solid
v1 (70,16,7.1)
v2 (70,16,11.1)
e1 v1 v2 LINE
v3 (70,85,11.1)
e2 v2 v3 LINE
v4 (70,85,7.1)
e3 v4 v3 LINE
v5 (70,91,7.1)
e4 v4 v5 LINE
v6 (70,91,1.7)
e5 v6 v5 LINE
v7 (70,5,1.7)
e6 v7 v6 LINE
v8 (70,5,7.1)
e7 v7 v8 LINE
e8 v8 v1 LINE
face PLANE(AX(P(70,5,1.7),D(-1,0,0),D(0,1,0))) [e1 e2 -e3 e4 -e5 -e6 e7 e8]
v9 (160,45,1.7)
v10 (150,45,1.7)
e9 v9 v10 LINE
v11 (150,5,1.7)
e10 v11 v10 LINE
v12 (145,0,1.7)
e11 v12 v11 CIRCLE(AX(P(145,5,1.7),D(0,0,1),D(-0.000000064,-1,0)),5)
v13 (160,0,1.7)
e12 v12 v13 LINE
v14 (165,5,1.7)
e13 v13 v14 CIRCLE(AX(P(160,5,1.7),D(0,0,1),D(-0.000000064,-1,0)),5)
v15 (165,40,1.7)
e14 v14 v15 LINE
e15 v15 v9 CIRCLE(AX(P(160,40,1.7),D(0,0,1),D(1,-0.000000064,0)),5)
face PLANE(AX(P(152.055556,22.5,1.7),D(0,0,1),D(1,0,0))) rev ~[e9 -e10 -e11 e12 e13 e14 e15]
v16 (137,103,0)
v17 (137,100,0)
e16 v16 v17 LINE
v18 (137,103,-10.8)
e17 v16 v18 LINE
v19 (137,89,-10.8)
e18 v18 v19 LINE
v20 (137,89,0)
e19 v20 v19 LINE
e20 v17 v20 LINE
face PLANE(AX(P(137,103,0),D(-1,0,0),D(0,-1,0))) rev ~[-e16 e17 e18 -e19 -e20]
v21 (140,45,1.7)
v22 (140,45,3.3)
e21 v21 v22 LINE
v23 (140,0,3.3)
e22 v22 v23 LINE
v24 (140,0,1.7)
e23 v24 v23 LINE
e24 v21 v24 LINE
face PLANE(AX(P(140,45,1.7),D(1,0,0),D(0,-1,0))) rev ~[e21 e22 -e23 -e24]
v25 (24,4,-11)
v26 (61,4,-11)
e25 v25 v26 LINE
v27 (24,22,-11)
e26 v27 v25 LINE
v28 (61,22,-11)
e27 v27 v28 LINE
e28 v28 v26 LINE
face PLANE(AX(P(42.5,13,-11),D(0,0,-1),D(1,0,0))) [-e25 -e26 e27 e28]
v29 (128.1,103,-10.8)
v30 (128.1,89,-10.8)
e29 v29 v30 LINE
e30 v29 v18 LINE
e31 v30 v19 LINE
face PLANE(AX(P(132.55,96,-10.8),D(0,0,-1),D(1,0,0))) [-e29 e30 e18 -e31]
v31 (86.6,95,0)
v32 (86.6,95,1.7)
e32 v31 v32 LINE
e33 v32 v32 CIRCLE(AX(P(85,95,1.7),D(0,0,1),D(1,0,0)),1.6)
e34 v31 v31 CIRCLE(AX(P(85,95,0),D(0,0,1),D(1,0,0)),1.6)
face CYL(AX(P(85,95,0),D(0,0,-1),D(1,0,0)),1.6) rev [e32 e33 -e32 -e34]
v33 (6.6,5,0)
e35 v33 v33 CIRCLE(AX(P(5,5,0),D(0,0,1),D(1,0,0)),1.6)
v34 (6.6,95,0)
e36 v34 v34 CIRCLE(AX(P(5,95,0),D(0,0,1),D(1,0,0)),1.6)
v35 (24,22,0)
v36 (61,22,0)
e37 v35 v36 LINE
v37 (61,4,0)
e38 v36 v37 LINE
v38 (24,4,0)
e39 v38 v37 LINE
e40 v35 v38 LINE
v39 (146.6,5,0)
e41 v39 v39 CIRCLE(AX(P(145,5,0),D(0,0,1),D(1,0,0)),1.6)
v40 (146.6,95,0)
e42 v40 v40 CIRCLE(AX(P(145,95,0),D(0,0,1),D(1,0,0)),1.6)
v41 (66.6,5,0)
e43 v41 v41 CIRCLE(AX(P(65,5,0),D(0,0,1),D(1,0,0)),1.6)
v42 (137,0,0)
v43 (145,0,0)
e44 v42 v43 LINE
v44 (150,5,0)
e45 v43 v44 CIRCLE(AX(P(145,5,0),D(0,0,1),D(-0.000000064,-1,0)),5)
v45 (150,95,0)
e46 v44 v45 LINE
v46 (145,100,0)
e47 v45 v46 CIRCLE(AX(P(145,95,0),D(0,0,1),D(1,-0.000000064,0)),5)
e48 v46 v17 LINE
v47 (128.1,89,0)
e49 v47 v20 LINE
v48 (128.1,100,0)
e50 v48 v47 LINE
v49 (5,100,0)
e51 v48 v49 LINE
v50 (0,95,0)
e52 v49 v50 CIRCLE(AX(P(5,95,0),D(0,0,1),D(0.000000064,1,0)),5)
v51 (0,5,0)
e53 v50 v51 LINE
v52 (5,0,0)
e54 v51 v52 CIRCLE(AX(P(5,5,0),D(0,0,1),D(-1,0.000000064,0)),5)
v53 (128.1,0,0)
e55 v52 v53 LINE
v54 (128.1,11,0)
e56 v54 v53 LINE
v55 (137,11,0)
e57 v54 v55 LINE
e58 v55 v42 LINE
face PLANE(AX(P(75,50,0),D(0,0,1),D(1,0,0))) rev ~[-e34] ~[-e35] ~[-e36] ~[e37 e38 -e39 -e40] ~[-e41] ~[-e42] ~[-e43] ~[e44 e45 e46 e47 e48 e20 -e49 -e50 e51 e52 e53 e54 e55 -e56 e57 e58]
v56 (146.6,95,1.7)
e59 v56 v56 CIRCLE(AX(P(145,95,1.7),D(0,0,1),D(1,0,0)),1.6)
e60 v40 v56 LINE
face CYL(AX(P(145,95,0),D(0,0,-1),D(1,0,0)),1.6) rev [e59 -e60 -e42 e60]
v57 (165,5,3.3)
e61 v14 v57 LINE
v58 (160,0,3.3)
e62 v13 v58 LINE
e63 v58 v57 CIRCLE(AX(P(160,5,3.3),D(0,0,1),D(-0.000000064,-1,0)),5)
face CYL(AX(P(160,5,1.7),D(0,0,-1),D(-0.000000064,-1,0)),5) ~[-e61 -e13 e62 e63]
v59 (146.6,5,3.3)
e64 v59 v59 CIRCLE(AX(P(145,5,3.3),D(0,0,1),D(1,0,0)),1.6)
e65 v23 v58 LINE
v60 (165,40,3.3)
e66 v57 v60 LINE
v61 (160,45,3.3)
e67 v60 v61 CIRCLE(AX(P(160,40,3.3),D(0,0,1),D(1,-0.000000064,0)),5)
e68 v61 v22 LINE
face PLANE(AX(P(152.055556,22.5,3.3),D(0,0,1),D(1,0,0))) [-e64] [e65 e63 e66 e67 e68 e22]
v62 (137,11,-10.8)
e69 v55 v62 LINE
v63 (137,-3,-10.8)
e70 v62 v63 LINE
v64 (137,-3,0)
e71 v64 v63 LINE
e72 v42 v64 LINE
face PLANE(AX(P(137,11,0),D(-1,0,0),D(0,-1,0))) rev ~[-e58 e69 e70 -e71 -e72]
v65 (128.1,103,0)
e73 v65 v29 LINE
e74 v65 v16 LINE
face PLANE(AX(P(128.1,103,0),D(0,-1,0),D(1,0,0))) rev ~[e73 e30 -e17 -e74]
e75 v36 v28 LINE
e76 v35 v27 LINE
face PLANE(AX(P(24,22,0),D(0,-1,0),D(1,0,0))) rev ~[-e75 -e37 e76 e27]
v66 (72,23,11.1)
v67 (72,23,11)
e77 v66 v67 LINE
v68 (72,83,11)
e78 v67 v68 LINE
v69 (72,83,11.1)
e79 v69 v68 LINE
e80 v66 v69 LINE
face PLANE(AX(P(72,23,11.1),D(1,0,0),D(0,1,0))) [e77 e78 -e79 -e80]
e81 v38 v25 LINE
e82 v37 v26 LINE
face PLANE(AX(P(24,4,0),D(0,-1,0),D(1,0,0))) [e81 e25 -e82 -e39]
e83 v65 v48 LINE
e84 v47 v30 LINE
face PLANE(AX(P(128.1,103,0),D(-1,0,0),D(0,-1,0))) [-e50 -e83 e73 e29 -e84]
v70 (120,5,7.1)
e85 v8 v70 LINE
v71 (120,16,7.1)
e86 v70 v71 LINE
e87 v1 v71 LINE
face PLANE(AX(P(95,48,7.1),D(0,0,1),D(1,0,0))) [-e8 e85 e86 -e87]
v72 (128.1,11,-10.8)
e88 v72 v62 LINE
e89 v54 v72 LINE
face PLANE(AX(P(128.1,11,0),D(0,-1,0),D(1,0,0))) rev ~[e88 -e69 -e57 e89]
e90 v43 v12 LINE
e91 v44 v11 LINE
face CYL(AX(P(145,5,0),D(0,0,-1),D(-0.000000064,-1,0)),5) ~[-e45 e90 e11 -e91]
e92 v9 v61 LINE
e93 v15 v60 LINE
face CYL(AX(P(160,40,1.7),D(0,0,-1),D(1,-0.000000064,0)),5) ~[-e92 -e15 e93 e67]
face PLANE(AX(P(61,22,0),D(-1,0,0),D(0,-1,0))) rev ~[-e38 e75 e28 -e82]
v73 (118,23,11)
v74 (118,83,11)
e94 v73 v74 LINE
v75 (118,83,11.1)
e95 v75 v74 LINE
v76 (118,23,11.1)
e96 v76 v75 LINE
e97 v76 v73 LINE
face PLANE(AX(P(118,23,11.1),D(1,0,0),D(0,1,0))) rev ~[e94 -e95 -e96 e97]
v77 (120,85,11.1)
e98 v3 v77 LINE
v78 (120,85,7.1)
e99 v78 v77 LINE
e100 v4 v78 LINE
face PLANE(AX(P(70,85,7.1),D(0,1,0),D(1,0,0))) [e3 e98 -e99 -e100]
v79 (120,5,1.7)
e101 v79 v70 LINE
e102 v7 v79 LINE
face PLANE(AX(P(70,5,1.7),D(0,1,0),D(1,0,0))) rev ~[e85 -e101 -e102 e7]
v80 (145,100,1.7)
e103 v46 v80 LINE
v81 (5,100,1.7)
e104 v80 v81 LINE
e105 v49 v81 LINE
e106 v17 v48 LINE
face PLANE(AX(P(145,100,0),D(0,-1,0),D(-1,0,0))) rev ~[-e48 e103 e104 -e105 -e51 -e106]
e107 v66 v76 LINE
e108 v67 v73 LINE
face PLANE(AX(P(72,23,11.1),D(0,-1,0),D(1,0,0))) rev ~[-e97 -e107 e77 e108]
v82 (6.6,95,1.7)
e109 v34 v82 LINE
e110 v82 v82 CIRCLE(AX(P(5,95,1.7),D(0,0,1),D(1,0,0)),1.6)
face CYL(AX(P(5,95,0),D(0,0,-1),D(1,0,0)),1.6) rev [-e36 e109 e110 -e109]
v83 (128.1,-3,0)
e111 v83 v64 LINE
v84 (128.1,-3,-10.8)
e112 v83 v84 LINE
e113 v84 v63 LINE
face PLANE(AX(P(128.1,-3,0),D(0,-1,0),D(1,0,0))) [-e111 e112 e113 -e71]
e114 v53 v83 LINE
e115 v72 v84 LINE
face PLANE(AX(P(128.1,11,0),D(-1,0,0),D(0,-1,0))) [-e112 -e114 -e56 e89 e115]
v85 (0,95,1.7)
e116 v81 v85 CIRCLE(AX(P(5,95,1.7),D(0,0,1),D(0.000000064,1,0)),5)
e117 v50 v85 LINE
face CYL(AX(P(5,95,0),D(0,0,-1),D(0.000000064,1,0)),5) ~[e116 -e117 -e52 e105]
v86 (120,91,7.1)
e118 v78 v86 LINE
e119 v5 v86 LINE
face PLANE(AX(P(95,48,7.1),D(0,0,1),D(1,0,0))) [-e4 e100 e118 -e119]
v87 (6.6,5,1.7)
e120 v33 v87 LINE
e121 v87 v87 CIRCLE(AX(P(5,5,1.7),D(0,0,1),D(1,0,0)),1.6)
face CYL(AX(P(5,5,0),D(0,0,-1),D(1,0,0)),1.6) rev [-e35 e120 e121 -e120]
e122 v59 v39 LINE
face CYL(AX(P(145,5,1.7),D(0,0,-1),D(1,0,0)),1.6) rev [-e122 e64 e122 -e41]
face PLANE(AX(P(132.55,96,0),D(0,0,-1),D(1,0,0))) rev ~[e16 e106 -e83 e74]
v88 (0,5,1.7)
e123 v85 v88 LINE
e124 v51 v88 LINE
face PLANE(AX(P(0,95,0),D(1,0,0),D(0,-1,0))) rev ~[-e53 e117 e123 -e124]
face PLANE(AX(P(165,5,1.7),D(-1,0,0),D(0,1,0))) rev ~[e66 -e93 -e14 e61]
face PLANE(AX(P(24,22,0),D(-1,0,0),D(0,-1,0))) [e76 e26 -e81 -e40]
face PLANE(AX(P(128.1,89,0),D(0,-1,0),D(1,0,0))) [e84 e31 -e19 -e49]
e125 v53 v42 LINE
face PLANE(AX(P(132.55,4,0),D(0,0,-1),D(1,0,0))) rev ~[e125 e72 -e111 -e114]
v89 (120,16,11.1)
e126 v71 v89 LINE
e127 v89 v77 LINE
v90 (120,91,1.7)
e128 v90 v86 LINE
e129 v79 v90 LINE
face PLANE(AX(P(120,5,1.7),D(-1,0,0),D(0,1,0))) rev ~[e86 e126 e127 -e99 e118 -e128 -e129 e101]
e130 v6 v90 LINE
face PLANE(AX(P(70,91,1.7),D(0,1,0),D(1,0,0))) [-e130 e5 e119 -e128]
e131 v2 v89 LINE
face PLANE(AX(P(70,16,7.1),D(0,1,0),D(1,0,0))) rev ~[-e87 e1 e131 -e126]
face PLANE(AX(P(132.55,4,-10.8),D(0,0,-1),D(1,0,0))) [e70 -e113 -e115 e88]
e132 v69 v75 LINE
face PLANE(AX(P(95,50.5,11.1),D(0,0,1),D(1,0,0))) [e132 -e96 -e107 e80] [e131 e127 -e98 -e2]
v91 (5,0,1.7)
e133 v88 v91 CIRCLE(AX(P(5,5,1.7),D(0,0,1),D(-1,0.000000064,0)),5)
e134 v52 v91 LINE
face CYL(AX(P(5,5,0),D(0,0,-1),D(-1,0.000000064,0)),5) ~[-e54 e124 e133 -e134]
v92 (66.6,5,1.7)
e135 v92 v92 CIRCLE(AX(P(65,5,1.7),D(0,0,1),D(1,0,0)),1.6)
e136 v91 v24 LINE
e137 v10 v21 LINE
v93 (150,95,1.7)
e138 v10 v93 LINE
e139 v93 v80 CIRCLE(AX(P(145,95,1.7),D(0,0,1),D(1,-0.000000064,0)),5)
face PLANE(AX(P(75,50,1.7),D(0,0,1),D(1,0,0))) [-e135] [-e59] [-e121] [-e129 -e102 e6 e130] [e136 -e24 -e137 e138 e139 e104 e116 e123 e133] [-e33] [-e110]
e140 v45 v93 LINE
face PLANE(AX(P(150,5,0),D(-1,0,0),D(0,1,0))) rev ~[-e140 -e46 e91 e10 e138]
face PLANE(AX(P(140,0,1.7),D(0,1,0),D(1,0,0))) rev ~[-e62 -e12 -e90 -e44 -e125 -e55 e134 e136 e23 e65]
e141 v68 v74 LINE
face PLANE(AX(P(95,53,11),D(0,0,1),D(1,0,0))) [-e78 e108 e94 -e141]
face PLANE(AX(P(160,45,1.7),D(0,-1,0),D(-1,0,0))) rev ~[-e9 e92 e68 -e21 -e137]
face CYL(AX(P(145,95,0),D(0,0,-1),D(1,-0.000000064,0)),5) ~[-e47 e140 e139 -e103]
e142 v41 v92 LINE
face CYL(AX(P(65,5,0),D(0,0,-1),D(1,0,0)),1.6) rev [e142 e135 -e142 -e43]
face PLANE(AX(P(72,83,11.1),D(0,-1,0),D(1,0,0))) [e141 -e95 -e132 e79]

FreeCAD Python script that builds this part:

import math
import FreeCAD as App
import Part
import Sketcher
Q = App.Units.Quantity


def add_polygon(sketch, points):
    """Adds a closed chain of lines whose ends are joined by coincident constraints."""
    first, n = sketch.GeometryCount, len(points)
    for a, b in zip(points, points[1:] + points[:1]):
        sketch.addGeometry(Part.LineSegment(App.Vector(*a, 0), App.Vector(*b, 0)), False)
    for i in range(n):
        sketch.addConstraint(Sketcher.Constraint("Coincident", first + i, 2, first + (i + 1) % n, 1))

doc = App.newDocument("Part")
body = doc.addObject("PartDesign::Body", "Body")

sketch1 = body.newObject("Sketcher::SketchObject", "Sketch")
sketch1.AttachmentSupport = (doc.getObject("XY_Plane"), [""])
sketch1.MapMode = "FlatFace"
sketch1.addGeometry([
    Part.ArcOfCircle(Part.Circle(App.Vector(5, 5, 0), App.Vector(0, 0, 1), 5), math.radians(180), math.radians(270)),
    Part.LineSegment(App.Vector(5, 0, 0), App.Vector(145, 0, 0)),
    Part.ArcOfCircle(Part.Circle(App.Vector(145, 5, 0), App.Vector(0, 0, 1), 5), math.radians(-90), math.radians(0)),
    Part.LineSegment(App.Vector(150, 5, 0), App.Vector(150, 95, 0)),
    Part.ArcOfCircle(Part.Circle(App.Vector(145, 95, 0), App.Vector(0, 0, 1), 5), math.radians(0), math.radians(90)),
    Part.LineSegment(App.Vector(145, 100, 0), App.Vector(5, 100, 0)),
    Part.ArcOfCircle(Part.Circle(App.Vector(5, 95, 0), App.Vector(0, 0, 1), 5), math.radians(90), math.radians(180)),
    Part.LineSegment(App.Vector(0, 95, 0), App.Vector(0, 5, 0)),
    Part.Circle(App.Vector(5, 5, 0), App.Vector(0, 0, 1), 1.6),
    Part.Circle(App.Vector(65, 5, 0), App.Vector(0, 0, 1), 1.6),
    Part.Circle(App.Vector(145, 5, 0), App.Vector(0, 0, 1), 1.6),
    Part.Circle(App.Vector(5, 95, 0), App.Vector(0, 0, 1), 1.6),
    Part.Circle(App.Vector(85, 95, 0), App.Vector(0, 0, 1), 1.6),
    Part.Circle(App.Vector(145, 95, 0), App.Vector(0, 0, 1), 1.6),
], False)
sketch1.addConstraint([
    Sketcher.Constraint("Tangent", 0, 2, 1, 1),
    Sketcher.Constraint("Tangent", 1, 2, 2, 1),
    Sketcher.Constraint("Tangent", 2, 2, 3, 1),
    Sketcher.Constraint("Tangent", 3, 2, 4, 1),
    Sketcher.Constraint("Tangent", 4, 2, 5, 1),
    Sketcher.Constraint("Tangent", 5, 2, 6, 1),
    Sketcher.Constraint("Tangent", 6, 2, 7, 1),
    Sketcher.Constraint("Tangent", 7, 2, 0, 1),
    Sketcher.Constraint("Horizontal", 1),
    Sketcher.Constraint("Vertical", 3),
    Sketcher.Constraint("Horizontal", 5),
    Sketcher.Constraint("Vertical", 7),
    Sketcher.Constraint("Coincident", 8, 3, 0, 3),
    Sketcher.Constraint("Coincident", 10, 3, 2, 3),
    Sketcher.Constraint("Coincident", 11, 3, 6, 3),
    Sketcher.Constraint("Coincident", 13, 3, 4, 3),
    Sketcher.Constraint("Equal", 0, 2),
    Sketcher.Constraint("Equal", 2, 4),
    Sketcher.Constraint("Equal", 4, 6),
    Sketcher.Constraint("Equal", 8, 9),
    Sketcher.Constraint("Equal", 9, 10),
    Sketcher.Constraint("Equal", 10, 11),
    Sketcher.Constraint("Equal", 11, 12),
    Sketcher.Constraint("Equal", 12, 13),
    Sketcher.Constraint("PointOnObject", 0, 2, -1),
    Sketcher.Constraint("PointOnObject", 6, 2, -2),
    Sketcher.Constraint("Horizontal", 8, 3, 9, 3),
    Sketcher.Constraint("Horizontal", 11, 3, 12, 3),
    Sketcher.Constraint("Radius", 0, Q("5 mm")),
    Sketcher.Constraint("Diameter", 8, Q("3.2 mm")),
    Sketcher.Constraint("DistanceX", 1, 1, 1, 2, Q("140 mm")),
    Sketcher.Constraint("DistanceY", 3, 1, 3, 2, Q("90 mm")),
    Sketcher.Constraint("DistanceX", -1, 1, 9, 3, Q("65 mm")),
    Sketcher.Constraint("DistanceX", -1, 1, 12, 3, Q("85 mm")),
])
pad1 = body.newObject("PartDesign::Pad", "Pad")
pad1.Profile = sketch1
pad1.Length = 1.7

sketch2 = body.newObject("Sketcher::SketchObject", "Sketch001")
sketch2.AttachmentSupport = (doc.getObject("XY_Plane"), [""])
sketch2.MapMode = "FlatFace"
sketch2.AttachmentOffset = App.Placement(App.Vector(0, 0, 1.7), App.Rotation())
add_polygon(sketch2, [(70, 91), (70, 5), (120, 5), (120, 91)])
sketch2.addConstraint([
    Sketcher.Constraint("Vertical", 0),
    Sketcher.Constraint("Horizontal", 1),
    Sketcher.Constraint("Vertical", 2),
    Sketcher.Constraint("Horizontal", 3),
    Sketcher.Constraint("DistanceX", 1, 1, 1, 2, Q("50 mm")),
    Sketcher.Constraint("DistanceY", 0, 2, 0, 1, Q("86 mm")),
    Sketcher.Constraint("DistanceX", -1, 1, 0, 2, Q("70 mm")),
    Sketcher.Constraint("DistanceY", -1, 1, 0, 2, Q("5 mm")),
])
pad2 = body.newObject("PartDesign::Pad", "Pad001")
pad2.Profile = sketch2
pad2.Length = 5.4

sketch3 = body.newObject("Sketcher::SketchObject", "Sketch002")
sketch3.AttachmentSupport = (doc.getObject("XY_Plane"), [""])
sketch3.MapMode = "FlatFace"
sketch3.AttachmentOffset = App.Placement(App.Vector(0, 0, 7.1), App.Rotation())
add_polygon(sketch3, [(70, 85), (70, 16), (120, 16), (120, 85)])
sketch3.addConstraint([
    Sketcher.Constraint("Vertical", 0),
    Sketcher.Constraint("Horizontal", 1),
    Sketcher.Constraint("Vertical", 2),
    Sketcher.Constraint("Horizontal", 3),
    Sketcher.Constraint("DistanceX", 1, 1, 1, 2, Q("50 mm")),
    Sketcher.Constraint("DistanceY", 0, 2, 0, 1, Q("69 mm")),
    Sketcher.Constraint("DistanceX", -1, 1, 0, 2, Q("70 mm")),
    Sketcher.Constraint("DistanceY", -1, 1, 0, 2, Q("16 mm")),
])
pad3 = body.newObject("PartDesign::Pad", "Pad002")
pad3.Profile = sketch3
pad3.Length = 4

sketch4 = body.newObject("Sketcher::SketchObject", "Sketch003")
sketch4.AttachmentSupport = (doc.getObject("XY_Plane"), [""])
sketch4.MapMode = "FlatFace"
sketch4.AttachmentOffset = App.Placement(App.Vector(0, 0, 11.1), App.Rotation())
add_polygon(sketch4, [(72, 83), (72, 23), (118, 23), (118, 83)])
sketch4.addConstraint([
    Sketcher.Constraint("Vertical", 0),
    Sketcher.Constraint("Horizontal", 1),
    Sketcher.Constraint("Vertical", 2),
    Sketcher.Constraint("Horizontal", 3),
    Sketcher.Constraint("DistanceX", 1, 1, 1, 2, Q("46 mm")),
    Sketcher.Constraint("DistanceY", 0, 2, 0, 1, Q("60 mm")),
    Sketcher.Constraint("DistanceX", -1, 1, 0, 2, Q("72 mm")),
    Sketcher.Constraint("DistanceY", -1, 1, 0, 2, Q("23 mm")),
])
pocket1 = body.newObject("PartDesign::Pocket", "Pocket")
pocket1.Profile = sketch4
pocket1.Length = 0.1

sketch5 = body.newObject("Sketcher::SketchObject", "Sketch004")
sketch5.AttachmentSupport = (doc.getObject("XY_Plane"), [""])
sketch5.MapMode = "FlatFace"
sketch5.AttachmentOffset = App.Placement(App.Vector(0, 0, 1.7), App.Rotation())
sketch5.addGeometry([
    Part.LineSegment(App.Vector(140, 45, 0), App.Vector(140, 0, 0)),
    Part.LineSegment(App.Vector(140, 0, 0), App.Vector(160, 0, 0)),
    Part.ArcOfCircle(Part.Circle(App.Vector(160, 5, 0), App.Vector(0, 0, 1), 5), math.radians(-90), math.radians(0)),
    Part.LineSegment(App.Vector(165, 5, 0), App.Vector(165, 40, 0)),
    Part.ArcOfCircle(Part.Circle(App.Vector(160, 40, 0), App.Vector(0, 0, 1), 5), math.radians(0), math.radians(90)),
    Part.LineSegment(App.Vector(160, 45, 0), App.Vector(140, 45, 0)),
    Part.Circle(App.Vector(145, 5, 0), App.Vector(0, 0, 1), 1.6),
], False)
sketch5.addConstraint([
    Sketcher.Constraint("Coincident", 0, 2, 1, 1),
    Sketcher.Constraint("Tangent", 1, 2, 2, 1),
    Sketcher.Constraint("Tangent", 2, 2, 3, 1),
    Sketcher.Constraint("Tangent", 3, 2, 4, 1),
    Sketcher.Constraint("Tangent", 4, 2, 5, 1),
    Sketcher.Constraint("Coincident", 5, 2, 0, 1),
    Sketcher.Constraint("Vertical", 0),
    Sketcher.Constraint("Horizontal", 1),
    Sketcher.Constraint("Vertical", 3),
    Sketcher.Constraint("Horizontal", 5),
    Sketcher.Constraint("Equal", 2, 4),
    Sketcher.Constraint("PointOnObject", 0, 2, -1),
    Sketcher.Constraint("Horizontal", 2, 3, 6, 3),
    Sketcher.Constraint("Radius", 2, Q("5 mm")),
    Sketcher.Constraint("Diameter", 6, Q("3.2 mm")),
    Sketcher.Constraint("DistanceX", 1, 1, 1, 2, Q("20 mm")),
    Sketcher.Constraint("DistanceY", 0, 2, 0, 1, Q("45 mm")),
    Sketcher.Constraint("DistanceX", -1, 1, 2, 3, Q("160 mm")),
    Sketcher.Constraint("DistanceX", -1, 1, 6, 3, Q("145 mm")),
])
pad4 = body.newObject("PartDesign::Pad", "Pad003")
pad4.Profile = sketch5
pad4.Length = 1.6

sketch6 = body.newObject("Sketcher::SketchObject", "Sketch005")
sketch6.AttachmentSupport = (doc.getObject("XY_Plane"), [""])
sketch6.MapMode = "FlatFace"
add_polygon(sketch6, [(24, 4), (24, 22), (61, 22), (61, 4)])
sketch6.addConstraint([
    Sketcher.Constraint("Vertical", 0),
    Sketcher.Constraint("Horizontal", 1),
    Sketcher.Constraint("Vertical", 2),
    Sketcher.Constraint("Horizontal", 3),
    Sketcher.Constraint("DistanceX", 1, 1, 1, 2, Q("37 mm")),
    Sketcher.Constraint("DistanceY", 0, 1, 0, 2, Q("18 mm")),
    Sketcher.Constraint("DistanceX", -1, 1, 0, 2, Q("24 mm")),
    Sketcher.Constraint("DistanceY", -1, 1, 0, 2, Q("22 mm")),
])
pad5 = body.newObject("PartDesign::Pad", "Pad004")
pad5.Profile = sketch6
pad5.Length = 11
pad5.Reversed = True

sketch7 = body.newObject("Sketcher::SketchObject", "Sketch006")
sketch7.AttachmentSupport = (doc.getObject("XY_Plane"), [""])
sketch7.MapMode = "FlatFace"
add_polygon(sketch7, [(128, 89), (128, 103), (137, 103), (137, 89)])
add_polygon(sketch7, [(128, -3), (128, 11), (137, 11), (137, -3)])
sketch7.addConstraint([
    Sketcher.Constraint("Vertical", 0),
    Sketcher.Constraint("Horizontal", 1),
    Sketcher.Constraint("Vertical", 2),
    Sketcher.Constraint("Horizontal", 3),
    Sketcher.Constraint("Vertical", 4),
    Sketcher.Constraint("Horizontal", 5),
    Sketcher.Constraint("Vertical", 6),
    Sketcher.Constraint("Horizontal", 7),
    Sketcher.Constraint("Vertical", 3, 2, 4, 2),
    Sketcher.Constraint("Vertical", 2, 2, 5, 2),
    Sketcher.Constraint("Equal", 2, 4),
    Sketcher.Constraint("DistanceY", 0, 1, 0, 2, Q("14 mm")),
    Sketcher.Constraint("DistanceX", 1, 1, 1, 2, Q("8.9 mm")),
    Sketcher.Constraint("DistanceY", -1, 1, 0, 2, Q("103 mm")),
    Sketcher.Constraint("DistanceX", -1, 1, 1, 2, Q("137 mm")),
    Sketcher.Constraint("DistanceY", -1, 1, 4, 2, Q("11 mm")),
])
pad6 = body.newObject("PartDesign::Pad", "Pad005")
pad6.Profile = sketch7
pad6.Length = 10.8
pad6.Reversed = True

doc.recompute()
